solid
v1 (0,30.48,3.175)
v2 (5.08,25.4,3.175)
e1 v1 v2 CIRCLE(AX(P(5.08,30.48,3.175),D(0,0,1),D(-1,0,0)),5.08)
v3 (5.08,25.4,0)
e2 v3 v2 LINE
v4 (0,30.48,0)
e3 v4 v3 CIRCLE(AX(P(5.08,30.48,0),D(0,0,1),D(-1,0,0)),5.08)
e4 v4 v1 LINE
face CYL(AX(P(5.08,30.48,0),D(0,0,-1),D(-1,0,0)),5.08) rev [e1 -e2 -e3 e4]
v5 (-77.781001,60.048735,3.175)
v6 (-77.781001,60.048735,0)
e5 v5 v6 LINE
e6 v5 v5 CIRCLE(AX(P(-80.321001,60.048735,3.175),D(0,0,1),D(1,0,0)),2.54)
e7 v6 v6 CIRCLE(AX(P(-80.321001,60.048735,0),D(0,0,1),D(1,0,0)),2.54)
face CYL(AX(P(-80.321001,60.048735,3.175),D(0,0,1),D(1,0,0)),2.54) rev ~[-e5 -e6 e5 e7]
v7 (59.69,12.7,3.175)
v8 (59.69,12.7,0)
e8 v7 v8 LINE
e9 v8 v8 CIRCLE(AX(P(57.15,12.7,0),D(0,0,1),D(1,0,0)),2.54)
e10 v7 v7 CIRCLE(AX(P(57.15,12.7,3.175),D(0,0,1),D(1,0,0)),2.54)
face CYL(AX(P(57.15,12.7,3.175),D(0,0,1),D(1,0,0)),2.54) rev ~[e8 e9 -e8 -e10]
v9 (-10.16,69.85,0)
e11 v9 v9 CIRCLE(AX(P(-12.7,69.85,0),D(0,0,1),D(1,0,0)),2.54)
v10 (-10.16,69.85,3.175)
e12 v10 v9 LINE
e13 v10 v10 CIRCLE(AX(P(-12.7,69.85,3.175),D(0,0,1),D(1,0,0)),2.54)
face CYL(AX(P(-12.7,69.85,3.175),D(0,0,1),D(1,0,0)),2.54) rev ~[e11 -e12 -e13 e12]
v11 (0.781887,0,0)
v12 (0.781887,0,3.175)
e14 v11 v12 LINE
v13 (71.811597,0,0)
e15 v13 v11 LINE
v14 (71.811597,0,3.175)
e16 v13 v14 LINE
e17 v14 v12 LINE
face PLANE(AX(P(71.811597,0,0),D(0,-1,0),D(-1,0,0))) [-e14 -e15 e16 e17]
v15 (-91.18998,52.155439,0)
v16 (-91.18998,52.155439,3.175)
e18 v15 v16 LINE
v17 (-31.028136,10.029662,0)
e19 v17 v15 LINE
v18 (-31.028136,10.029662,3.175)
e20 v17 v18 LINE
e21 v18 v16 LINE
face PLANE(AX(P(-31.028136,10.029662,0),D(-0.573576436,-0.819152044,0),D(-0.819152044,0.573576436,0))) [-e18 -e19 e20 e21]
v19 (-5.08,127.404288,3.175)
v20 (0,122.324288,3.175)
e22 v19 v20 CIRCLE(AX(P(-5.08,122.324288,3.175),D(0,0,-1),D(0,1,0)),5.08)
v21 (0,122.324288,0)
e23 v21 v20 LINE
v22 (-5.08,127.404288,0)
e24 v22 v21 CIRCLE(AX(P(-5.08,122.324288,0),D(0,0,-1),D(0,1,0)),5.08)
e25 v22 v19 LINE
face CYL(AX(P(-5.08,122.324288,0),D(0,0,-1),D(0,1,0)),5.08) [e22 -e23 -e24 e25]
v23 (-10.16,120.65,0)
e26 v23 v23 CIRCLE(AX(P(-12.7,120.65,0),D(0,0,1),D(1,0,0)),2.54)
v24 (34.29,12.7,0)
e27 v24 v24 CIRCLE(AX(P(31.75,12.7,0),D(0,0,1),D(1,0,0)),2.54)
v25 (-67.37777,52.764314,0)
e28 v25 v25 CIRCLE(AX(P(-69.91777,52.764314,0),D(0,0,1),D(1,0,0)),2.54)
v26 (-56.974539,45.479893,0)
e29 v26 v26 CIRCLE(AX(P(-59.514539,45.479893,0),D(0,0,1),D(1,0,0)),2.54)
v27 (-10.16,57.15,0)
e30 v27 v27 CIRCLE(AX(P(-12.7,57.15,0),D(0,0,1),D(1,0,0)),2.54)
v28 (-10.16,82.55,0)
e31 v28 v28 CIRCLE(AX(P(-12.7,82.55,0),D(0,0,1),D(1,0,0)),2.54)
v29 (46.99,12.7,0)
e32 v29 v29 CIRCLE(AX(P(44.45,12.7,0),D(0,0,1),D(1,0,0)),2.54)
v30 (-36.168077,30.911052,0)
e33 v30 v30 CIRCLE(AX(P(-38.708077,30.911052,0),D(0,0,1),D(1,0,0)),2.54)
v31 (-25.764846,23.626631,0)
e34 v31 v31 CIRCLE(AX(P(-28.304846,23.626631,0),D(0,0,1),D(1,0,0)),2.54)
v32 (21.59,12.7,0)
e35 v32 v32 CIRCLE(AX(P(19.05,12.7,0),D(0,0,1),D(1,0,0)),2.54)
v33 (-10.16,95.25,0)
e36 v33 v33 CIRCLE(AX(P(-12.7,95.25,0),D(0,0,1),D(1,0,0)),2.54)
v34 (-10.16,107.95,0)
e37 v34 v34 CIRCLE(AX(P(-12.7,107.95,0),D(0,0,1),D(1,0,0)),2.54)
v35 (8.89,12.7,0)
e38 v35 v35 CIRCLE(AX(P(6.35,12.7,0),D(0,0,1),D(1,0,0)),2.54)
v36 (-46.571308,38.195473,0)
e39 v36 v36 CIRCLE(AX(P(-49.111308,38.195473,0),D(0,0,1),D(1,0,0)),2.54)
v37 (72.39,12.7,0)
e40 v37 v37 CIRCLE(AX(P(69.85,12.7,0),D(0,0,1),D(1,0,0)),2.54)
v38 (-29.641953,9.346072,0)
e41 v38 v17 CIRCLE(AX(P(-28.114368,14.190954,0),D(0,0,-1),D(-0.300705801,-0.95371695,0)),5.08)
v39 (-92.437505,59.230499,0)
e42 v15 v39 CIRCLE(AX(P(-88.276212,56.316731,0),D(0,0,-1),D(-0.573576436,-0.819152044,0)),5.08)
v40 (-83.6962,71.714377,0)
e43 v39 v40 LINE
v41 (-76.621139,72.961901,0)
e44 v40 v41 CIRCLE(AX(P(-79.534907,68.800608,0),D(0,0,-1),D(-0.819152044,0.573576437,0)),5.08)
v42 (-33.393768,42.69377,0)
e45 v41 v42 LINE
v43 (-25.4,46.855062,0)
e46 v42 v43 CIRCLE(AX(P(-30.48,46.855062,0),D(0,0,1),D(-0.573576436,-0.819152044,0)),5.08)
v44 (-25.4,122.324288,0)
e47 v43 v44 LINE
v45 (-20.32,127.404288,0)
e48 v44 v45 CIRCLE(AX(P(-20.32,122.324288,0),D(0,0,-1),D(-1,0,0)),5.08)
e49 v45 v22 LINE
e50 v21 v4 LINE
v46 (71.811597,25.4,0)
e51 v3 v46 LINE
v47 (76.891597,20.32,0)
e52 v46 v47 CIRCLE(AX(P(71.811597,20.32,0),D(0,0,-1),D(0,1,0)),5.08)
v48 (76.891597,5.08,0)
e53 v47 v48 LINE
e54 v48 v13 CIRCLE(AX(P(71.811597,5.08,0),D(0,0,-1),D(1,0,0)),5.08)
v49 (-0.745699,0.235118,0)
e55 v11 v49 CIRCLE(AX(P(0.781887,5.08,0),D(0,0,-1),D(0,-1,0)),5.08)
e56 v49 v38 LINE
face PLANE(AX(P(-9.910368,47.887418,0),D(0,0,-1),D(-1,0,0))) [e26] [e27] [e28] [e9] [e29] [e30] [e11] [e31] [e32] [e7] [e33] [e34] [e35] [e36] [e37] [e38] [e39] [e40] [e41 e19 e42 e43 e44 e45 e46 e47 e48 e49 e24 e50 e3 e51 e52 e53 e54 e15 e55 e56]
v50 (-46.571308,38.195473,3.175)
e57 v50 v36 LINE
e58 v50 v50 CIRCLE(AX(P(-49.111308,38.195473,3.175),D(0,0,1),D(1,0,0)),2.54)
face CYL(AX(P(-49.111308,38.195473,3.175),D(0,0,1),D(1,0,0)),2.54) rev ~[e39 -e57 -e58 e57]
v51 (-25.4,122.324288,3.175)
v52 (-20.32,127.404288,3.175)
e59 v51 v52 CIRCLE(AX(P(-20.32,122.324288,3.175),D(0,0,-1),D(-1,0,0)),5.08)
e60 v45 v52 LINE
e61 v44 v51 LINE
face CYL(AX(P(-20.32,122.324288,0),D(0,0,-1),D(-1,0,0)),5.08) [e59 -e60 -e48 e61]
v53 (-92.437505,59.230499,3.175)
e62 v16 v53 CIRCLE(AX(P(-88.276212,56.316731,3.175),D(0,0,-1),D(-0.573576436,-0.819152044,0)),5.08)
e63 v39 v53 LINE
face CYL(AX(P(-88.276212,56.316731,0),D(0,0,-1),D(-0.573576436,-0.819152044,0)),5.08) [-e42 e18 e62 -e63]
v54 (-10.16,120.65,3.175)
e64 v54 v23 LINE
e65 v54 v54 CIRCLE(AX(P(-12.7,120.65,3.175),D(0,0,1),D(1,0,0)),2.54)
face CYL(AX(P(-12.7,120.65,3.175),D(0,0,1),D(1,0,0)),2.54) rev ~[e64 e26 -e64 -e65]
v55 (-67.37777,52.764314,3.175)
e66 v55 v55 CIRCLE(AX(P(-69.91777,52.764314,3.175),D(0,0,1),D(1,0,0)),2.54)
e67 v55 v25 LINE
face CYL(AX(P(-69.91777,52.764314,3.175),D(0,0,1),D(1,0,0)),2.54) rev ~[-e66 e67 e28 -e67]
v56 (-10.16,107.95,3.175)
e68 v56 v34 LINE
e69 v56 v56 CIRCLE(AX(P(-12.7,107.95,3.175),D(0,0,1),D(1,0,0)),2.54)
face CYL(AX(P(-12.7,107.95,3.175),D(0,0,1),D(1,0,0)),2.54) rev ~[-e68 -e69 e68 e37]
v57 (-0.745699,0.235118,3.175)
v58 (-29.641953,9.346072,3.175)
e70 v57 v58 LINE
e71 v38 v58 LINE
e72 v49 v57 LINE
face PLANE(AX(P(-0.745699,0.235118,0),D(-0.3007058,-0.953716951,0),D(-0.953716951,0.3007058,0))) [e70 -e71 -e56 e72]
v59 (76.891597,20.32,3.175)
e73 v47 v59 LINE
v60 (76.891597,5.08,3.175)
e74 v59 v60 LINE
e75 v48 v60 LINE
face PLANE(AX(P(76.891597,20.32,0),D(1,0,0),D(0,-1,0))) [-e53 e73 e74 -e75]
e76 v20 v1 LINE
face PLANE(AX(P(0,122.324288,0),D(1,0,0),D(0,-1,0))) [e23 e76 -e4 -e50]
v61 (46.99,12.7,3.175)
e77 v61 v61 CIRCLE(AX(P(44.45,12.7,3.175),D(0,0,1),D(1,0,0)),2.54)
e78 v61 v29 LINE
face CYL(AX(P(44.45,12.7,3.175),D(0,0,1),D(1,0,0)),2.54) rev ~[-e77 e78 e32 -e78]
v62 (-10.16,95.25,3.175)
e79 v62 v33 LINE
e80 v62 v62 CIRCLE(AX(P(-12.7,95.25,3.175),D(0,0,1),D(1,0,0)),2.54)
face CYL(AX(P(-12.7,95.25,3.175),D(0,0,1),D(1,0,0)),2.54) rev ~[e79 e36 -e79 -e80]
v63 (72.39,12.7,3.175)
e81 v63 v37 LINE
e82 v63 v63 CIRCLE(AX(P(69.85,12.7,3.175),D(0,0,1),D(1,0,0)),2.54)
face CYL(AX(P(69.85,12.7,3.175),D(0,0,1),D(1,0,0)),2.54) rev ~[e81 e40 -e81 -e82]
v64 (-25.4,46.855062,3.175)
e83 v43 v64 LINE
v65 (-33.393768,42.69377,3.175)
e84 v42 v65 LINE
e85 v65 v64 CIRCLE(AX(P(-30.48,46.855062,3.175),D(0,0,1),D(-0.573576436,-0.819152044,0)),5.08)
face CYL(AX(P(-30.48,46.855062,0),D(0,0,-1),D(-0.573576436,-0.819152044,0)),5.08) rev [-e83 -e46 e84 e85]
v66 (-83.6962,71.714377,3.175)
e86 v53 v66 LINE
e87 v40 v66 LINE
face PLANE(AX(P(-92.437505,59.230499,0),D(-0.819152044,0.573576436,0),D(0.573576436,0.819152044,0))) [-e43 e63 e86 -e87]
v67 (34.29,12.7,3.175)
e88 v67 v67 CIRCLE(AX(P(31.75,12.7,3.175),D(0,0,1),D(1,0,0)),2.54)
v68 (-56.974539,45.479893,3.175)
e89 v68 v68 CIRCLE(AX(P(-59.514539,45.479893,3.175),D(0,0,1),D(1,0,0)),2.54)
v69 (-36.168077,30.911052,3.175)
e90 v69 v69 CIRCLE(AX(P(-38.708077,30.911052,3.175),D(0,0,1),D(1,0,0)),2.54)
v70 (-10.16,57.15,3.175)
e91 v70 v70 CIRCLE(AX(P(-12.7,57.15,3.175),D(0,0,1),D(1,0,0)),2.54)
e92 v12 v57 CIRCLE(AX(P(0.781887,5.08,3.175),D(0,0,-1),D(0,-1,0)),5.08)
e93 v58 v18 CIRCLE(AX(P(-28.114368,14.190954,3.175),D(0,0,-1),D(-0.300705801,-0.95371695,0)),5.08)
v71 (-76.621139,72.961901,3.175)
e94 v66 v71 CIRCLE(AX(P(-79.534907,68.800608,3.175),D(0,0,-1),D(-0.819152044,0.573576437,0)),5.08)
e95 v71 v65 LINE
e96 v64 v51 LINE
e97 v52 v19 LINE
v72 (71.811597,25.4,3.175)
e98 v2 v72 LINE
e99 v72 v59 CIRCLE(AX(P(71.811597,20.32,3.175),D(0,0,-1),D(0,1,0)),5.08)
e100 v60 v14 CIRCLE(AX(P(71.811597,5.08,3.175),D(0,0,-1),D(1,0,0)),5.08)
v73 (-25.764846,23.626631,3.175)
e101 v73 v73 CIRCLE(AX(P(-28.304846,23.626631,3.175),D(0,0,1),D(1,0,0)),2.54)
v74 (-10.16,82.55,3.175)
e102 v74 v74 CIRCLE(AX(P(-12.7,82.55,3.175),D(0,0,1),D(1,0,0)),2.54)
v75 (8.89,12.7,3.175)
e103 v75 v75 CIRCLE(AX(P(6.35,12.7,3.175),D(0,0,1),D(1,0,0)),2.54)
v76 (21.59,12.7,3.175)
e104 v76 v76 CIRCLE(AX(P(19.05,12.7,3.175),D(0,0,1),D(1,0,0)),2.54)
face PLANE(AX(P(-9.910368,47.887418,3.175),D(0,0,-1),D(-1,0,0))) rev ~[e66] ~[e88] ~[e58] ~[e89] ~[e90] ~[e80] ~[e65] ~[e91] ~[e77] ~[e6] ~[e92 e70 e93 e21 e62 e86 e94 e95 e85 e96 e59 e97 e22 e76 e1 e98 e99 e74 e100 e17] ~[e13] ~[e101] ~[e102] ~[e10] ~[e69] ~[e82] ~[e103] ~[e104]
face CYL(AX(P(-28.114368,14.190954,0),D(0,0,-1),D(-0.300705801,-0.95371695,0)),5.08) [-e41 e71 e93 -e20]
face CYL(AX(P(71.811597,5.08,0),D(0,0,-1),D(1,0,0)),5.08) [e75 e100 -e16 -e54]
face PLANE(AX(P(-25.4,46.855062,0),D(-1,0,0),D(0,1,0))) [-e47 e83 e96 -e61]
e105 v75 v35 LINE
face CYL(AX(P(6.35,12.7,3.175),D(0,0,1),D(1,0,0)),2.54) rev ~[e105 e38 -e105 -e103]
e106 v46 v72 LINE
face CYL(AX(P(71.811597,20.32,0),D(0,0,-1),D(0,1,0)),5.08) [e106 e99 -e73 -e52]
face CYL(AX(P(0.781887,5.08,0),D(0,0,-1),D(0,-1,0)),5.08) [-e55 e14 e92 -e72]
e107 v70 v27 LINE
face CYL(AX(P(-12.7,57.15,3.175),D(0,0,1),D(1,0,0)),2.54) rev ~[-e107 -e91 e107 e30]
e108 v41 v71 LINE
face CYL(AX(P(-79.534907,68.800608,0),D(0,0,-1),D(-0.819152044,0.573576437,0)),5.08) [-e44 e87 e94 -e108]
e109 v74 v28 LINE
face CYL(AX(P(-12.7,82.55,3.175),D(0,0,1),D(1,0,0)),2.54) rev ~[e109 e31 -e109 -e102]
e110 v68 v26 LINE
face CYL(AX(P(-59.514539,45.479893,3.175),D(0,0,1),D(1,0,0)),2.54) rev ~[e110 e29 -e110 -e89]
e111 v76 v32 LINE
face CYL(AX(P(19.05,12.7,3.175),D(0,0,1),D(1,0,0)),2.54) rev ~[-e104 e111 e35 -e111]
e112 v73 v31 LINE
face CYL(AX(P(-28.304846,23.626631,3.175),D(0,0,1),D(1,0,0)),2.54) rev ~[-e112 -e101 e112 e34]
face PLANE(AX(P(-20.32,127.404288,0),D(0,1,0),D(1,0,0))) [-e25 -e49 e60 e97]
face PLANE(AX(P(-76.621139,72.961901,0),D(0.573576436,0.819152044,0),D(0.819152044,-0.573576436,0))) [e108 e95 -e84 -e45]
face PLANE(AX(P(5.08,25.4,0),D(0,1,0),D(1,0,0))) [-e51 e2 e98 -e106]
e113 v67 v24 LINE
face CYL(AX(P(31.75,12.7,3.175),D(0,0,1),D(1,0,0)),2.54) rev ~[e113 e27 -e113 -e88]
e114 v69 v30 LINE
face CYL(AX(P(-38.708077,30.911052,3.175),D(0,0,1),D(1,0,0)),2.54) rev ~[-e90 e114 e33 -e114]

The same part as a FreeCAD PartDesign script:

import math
import FreeCAD as App
import Part
import Sketcher

V = App.Vector
Q = App.Units.Quantity

doc = App.newDocument("Part")
body = doc.addObject("PartDesign::Body", "Body")

sketch1 = doc.addObject("Sketcher::SketchObject", "Sketch")
body.addObject(sketch1)
sketch1.AttachmentSupport = (doc.XY_Plane, [""])
sketch1.MapMode = "FlatFace"
sketch1.addGeometry([
    Part.LineSegment(V(-5.1, 127.4, 0), V(-20.3, 127.4, 0)),
    Part.ArcOfCircle(Part.Circle(V(-20.3, 122.3, 0), V(0, 0, 1), 5.1), math.radians(90), math.radians(180)),
    Part.LineSegment(V(-25.4, 122.3, 0), V(-25.4, 46.9, 0)),
    Part.ArcOfCircle(Part.Circle(V(-30.5, 46.9, 0), V(0, 0, 1), 5.1), math.radians(-125), math.radians(0)),
    Part.LineSegment(V(-33.4, 42.7, 0), V(-76.6, 73, 0)),
    Part.ArcOfCircle(Part.Circle(V(-79.5, 68.8, 0), V(0, 0, 1), 5.1), math.radians(55), math.radians(145)),
    Part.LineSegment(V(-83.7, 71.7, 0), V(-92.4, 59.2, 0)),
    Part.ArcOfCircle(Part.Circle(V(-88.3, 56.3, 0), V(0, 0, 1), 5.1), math.radians(145), math.radians(235)),
    Part.LineSegment(V(-91.2, 52.2, 0), V(-31, 10, 0)),
    Part.ArcOfCircle(Part.Circle(V(-28.1, 14.2, 0), V(0, 0, 1), 5.1), math.radians(-125), math.radians(-107.5)),
    Part.LineSegment(V(-29.6, 9.3, 0), V(-0.7, 0.2, 0)),
    Part.ArcOfCircle(Part.Circle(V(0.8, 5.1, 0), V(0, 0, 1), 5.1), math.radians(-107.5), math.radians(-90)),
    Part.LineSegment(V(0.8, 0, 0), V(71.8, 0, 0)),
    Part.ArcOfCircle(Part.Circle(V(71.8, 5.1, 0), V(0, 0, 1), 5.1), math.radians(-90), math.radians(0)),
    Part.LineSegment(V(76.9, 5.1, 0), V(76.9, 20.3, 0)),
    Part.ArcOfCircle(Part.Circle(V(71.8, 20.3, 0), V(0, 0, 1), 5.1), math.radians(0), math.radians(90)),
    Part.LineSegment(V(71.8, 25.4, 0), V(5.1, 25.4, 0)),
    Part.ArcOfCircle(Part.Circle(V(5.1, 30.5, 0), V(0, 0, 1), 5.1), math.radians(-180), math.radians(-90)),
    Part.LineSegment(V(0, 30.5, 0), V(0, 122.3, 0)),
    Part.ArcOfCircle(Part.Circle(V(-5.1, 122.3, 0), V(0, 0, 1), 5.1), math.radians(0), math.radians(90)),
], False)
sketch1.addConstraint([
    Sketcher.Constraint("Tangent", 0, 2, 1, 1),
    Sketcher.Constraint("Tangent", 1, 2, 2, 1),
    Sketcher.Constraint("Tangent", 2, 2, 3, 2),
    Sketcher.Constraint("Tangent", 3, 1, 4, 1),
    Sketcher.Constraint("Tangent", 4, 2, 5, 1),
    Sketcher.Constraint("Tangent", 5, 2, 6, 1),
    Sketcher.Constraint("Tangent", 6, 2, 7, 1),
    Sketcher.Constraint("Tangent", 7, 2, 8, 1),
    Sketcher.Constraint("Tangent", 8, 2, 9, 1),
    Sketcher.Constraint("Tangent", 9, 2, 10, 1),
    Sketcher.Constraint("Tangent", 10, 2, 11, 1),
    Sketcher.Constraint("Tangent", 11, 2, 12, 1),
    Sketcher.Constraint("Tangent", 12, 2, 13, 1),
    Sketcher.Constraint("Tangent", 13, 2, 14, 1),
    Sketcher.Constraint("Tangent", 14, 2, 15, 1),
    Sketcher.Constraint("Tangent", 15, 2, 16, 1),
    Sketcher.Constraint("Tangent", 16, 2, 17, 2),
    Sketcher.Constraint("Tangent", 17, 1, 18, 1),
    Sketcher.Constraint("Tangent", 18, 2, 19, 1),
    Sketcher.Constraint("Tangent", 19, 2, 0, 1),
    Sketcher.Constraint("Horizontal", 0),
    Sketcher.Constraint("Vertical", 2),
    Sketcher.Constraint("Horizontal", 12),
    Sketcher.Constraint("Vertical", 14),
    Sketcher.Constraint("Horizontal", 16),
    Sketcher.Constraint("Vertical", 18),
    Sketcher.Constraint("Equal", 1, 3),
    Sketcher.Constraint("Equal", 3, 5),
    Sketcher.Constraint("Equal", 5, 7),
    Sketcher.Constraint("Equal", 7, 9),
    Sketcher.Constraint("Equal", 9, 11),
    Sketcher.Constraint("Equal", 11, 13),
    Sketcher.Constraint("Equal", 13, 15),
    Sketcher.Constraint("Equal", 15, 17),
    Sketcher.Constraint("Equal", 17, 19),
    Sketcher.Constraint("PointOnObject", 11, 2, -1),
    Sketcher.Constraint("PointOnObject", 17, 1, -2),
    Sketcher.Constraint("Perpendicular", 4, 6),
    Sketcher.Constraint("Perpendicular", 6, 8),
    Sketcher.Constraint("Equal", 0, 14),
    Sketcher.Constraint("Radius", 1, Q("0.2 in")),
    Sketcher.Constraint("DistanceX", 0, 2, 0, 1, Q("0.6 in")),
    Sketcher.Constraint("Angle", 4, Q("145 deg")),
    Sketcher.Constraint("Distance", 6, Q("0.6 in")),
    Sketcher.Constraint("Angle", 10, Q("-17.5 deg")),
    Sketcher.Constraint("DistanceX", 12, 1, 12, 2, 71.029711),
    Sketcher.Constraint("DistanceY", -1, 1, 4, 2, 72.961901),
    Sketcher.Constraint("DistanceX", 5, 2, -1, 1, 83.6962),
    Sketcher.Constraint("DistanceX", 10, 2, -1, 1, 0.745699),
    Sketcher.Constraint("DistanceY", 2, 2, 2, 1, 75.469225),
])
pad1 = doc.addObject("PartDesign::Pad", "Pad")
body.addObject(pad1)
pad1.Profile = sketch1
pad1.Length = Q("0.125 in")

sketch2 = doc.addObject("Sketcher::SketchObject", "Sketch001")
body.addObject(sketch2)
sketch2.AttachmentSupport = (doc.XY_Plane, [""])
sketch2.MapMode = "FlatFace"
sketch2.AttachmentOffset = App.Placement(V(0, 0, 0.125 * 25.4), App.Rotation())
sketch2.addGeometry([
    Part.Circle(V(-12.7, 57.1, 0), V(0, 0, 1), 2.5),
    Part.Circle(V(6.3, 12.7, 0), V(0, 0, 1), 2.5),
    Part.Circle(V(-28.3, 23.6, 0), V(0, 0, 1), 2.5),
    Part.Circle(V(-38.7, 30.9, 0), V(0, 0, 1), 2.5),
    Part.Circle(V(-49.1, 38.2, 0), V(0, 0, 1), 2.5),
    Part.Circle(V(-59.5, 45.5, 0), V(0, 0, 1), 2.5),
    Part.Circle(V(-69.9, 52.8, 0), V(0, 0, 1), 2.5),
    Part.Circle(V(-80.3, 60, 0), V(0, 0, 1), 2.5),
    Part.Circle(V(-12.7, 69.8, 0), V(0, 0, 1), 2.5),
    Part.Circle(V(-12.7, 82.5, 0), V(0, 0, 1), 2.5),
    Part.Circle(V(-12.7, 95.2, 0), V(0, 0, 1), 2.5),
    Part.Circle(V(-12.7, 108, 0), V(0, 0, 1), 2.5),
    Part.Circle(V(-12.7, 120.7, 0), V(0, 0, 1), 2.5),
    Part.Circle(V(19.1, 12.7, 0), V(0, 0, 1), 2.5),
    Part.Circle(V(31.8, 12.7, 0), V(0, 0, 1), 2.5),
    Part.Circle(V(44.5, 12.7, 0), V(0, 0, 1), 2.5),
    Part.Circle(V(57.1, 12.7, 0), V(0, 0, 1), 2.5),
    Part.Circle(V(69.8, 12.7, 0), V(0, 0, 1), 2.5),
], False)
sketch2.addConstraint([
    Sketcher.Constraint("Equal", 0, 1),
    Sketcher.Constraint("Equal", 1, 2),
    Sketcher.Constraint("Equal", 2, 3),
    Sketcher.Constraint("Equal", 3, 4),
    Sketcher.Constraint("Equal", 4, 5),
    Sketcher.Constraint("Equal", 5, 6),
    Sketcher.Constraint("Equal", 6, 7),
    Sketcher.Constraint("Equal", 7, 8),
    Sketcher.Constraint("Equal", 8, 9),
    Sketcher.Constraint("Equal", 9, 10),
    Sketcher.Constraint("Equal", 10, 11),
    Sketcher.Constraint("Equal", 11, 12),
    Sketcher.Constraint("Equal", 12, 13),
    Sketcher.Constraint("Equal", 13, 14),
    Sketcher.Constraint("Equal", 14, 15),
    Sketcher.Constraint("Equal", 15, 16),
    Sketcher.Constraint("Equal", 16, 17),
    Sketcher.Constraint("Horizontal", 1, 3, 13, 3),
    Sketcher.Constraint("Horizontal", 13, 3, 14, 3),
    Sketcher.Constraint("Horizontal", 14, 3, 15, 3),
    Sketcher.Constraint("Horizontal", 15, 3, 16, 3),
    Sketcher.Constraint("Horizontal", 16, 3, 17, 3),
    Sketcher.Constraint("Vertical", 0, 3, 8, 3),
    Sketcher.Constraint("Vertical", 8, 3, 9, 3),
    Sketcher.Constraint("Vertical", 9, 3, 10, 3),
    Sketcher.Constraint("Vertical", 10, 3, 11, 3),
    Sketcher.Constraint("Vertical", 11, 3, 12, 3),
    Sketcher.Constraint("Diameter", 0, Q("0.2 in")),
    Sketcher.Constraint("DistanceY", 0, 3, 9, 3, Q("1 in")),
    Sketcher.Constraint("DistanceY", 8, 3, 10, 3, Q("1 in")),
    Sketcher.Constraint("DistanceY", 9, 3, 11, 3, Q("1 in")),
    Sketcher.Constraint("DistanceY", 10, 3, 12, 3, Q("1 in")),
    Sketcher.Constraint("DistanceX", 1, 3, 14, 3, Q("1 in")),
    Sketcher.Constraint("DistanceX", 13, 3, 15, 3, Q("1 in")),
    Sketcher.Constraint("DistanceX", 14, 3, 16, 3, Q("1 in")),
    Sketcher.Constraint("DistanceX", 15, 3, 17, 3, Q("1 in")),
    Sketcher.Constraint("DistanceX", 0, 3, -1, 1, Q("0.5 in")),
    Sketcher.Constraint("DistanceY", -1, 1, 1, 3, Q("0.5 in")),
    Sketcher.Constraint("DistanceY", 0, 3, 8, 3, Q("0.5 in")),
    Sketcher.Constraint("DistanceX", 1, 3, 13, 3, Q("0.5 in")),
    Sketcher.Constraint("DistanceY", -1, 1, 0, 3, Q("2.25 in")),
    Sketcher.Constraint("DistanceX", -1, 1, 1, 3, Q("0.25 in")),
    Sketcher.Constraint("DistanceX", 7, 3, -1, 1, 80.321001),
    Sketcher.Constraint("DistanceY", -1, 1, 2, 3, 23.626631),
    Sketcher.Constraint("DistanceY", -1, 1, 3, 3, 30.911052),
    Sketcher.Constraint("DistanceX", 4, 3, -1, 1, 49.111308),
    Sketcher.Constraint("DistanceX", 5, 3, -1, 1, 59.514539),
    Sketcher.Constraint("DistanceX", 6, 3, -1, 1, 69.91777),
    Sketcher.Constraint("DistanceX", 3, 3, 2, 3, 10.403231),
    Sketcher.Constraint("DistanceX", 4, 3, 3, 3, 10.403231),
    Sketcher.Constraint("DistanceY", 3, 3, 4, 3, 7.284421),
    Sketcher.Constraint("DistanceY", 4, 3, 5, 3, 7.284421),
    Sketcher.Constraint("DistanceY", 5, 3, 6, 3, 7.284421),
    Sketcher.Constraint("DistanceY", 6, 3, 7, 3, 7.284421),
])
pocket1 = doc.addObject("PartDesign::Pocket", "Pocket")
body.addObject(pocket1)
pocket1.Profile = sketch2
pocket1.Type = "ThroughAll"
pocket1.Midplane = True

doc.recompute()
